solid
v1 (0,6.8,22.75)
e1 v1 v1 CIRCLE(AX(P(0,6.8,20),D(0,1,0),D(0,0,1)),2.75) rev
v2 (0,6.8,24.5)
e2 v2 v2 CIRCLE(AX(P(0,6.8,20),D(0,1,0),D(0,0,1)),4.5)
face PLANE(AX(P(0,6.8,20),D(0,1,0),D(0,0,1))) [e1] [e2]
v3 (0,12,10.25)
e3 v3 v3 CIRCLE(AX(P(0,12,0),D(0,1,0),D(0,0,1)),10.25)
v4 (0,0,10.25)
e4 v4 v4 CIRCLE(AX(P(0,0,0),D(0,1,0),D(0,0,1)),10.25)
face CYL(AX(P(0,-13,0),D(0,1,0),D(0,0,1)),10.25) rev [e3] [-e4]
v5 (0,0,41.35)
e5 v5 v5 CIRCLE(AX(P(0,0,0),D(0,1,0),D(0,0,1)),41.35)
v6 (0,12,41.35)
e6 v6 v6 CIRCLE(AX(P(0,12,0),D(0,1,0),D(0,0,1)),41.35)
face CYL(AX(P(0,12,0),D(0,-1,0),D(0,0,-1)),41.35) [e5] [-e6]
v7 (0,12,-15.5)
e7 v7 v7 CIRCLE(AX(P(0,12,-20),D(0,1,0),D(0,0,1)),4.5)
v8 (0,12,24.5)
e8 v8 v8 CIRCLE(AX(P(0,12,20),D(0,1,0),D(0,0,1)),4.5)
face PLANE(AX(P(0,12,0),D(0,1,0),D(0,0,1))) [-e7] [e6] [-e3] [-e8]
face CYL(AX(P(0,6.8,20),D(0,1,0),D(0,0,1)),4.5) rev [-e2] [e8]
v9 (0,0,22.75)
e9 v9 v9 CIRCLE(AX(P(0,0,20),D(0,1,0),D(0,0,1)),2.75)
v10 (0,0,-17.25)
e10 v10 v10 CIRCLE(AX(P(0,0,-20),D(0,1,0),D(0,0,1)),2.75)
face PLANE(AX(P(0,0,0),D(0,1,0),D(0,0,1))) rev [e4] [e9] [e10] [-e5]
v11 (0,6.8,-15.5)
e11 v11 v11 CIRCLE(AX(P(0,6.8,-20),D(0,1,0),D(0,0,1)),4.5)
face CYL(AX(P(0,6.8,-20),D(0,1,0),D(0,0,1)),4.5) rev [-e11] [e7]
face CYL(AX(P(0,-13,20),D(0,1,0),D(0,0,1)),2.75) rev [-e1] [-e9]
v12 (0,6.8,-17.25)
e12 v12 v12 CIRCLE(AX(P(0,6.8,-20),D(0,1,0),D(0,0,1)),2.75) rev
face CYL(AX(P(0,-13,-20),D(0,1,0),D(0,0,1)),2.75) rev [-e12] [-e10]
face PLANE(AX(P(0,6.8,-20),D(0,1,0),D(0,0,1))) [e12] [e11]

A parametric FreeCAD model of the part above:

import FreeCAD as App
import Part
import Sketcher
Q = App.Units.Quantity

doc = App.newDocument("Part")
params = doc.addObject("Spreadsheet::Sheet", "Params")
for row, (alias, value) in enumerate([
    ("sketch1_diameter", "82.7 mm"),
    ("pad1_length", "12 mm"),
    ("sketch2_diameter", "5.5 mm"),
    ("pocket1_length", "25 mm"),
    ("sketch3_diameter", "20.5 mm"),
    ("pocket2_length", "25 mm"),
    ("sketch4_diameter", "9 mm"),
    ("pocket3_length", "5.2 mm"),
], start=1):
    params.set(f"A{row}", alias)
    params.set(f"B{row}", "=" + value)
    params.setAlias(f"B{row}", alias)

body = doc.addObject("PartDesign::Body", "Body")

sketch1 = body.newObject("Sketcher::SketchObject", "Sketch")
sketch1.AttachmentSupport = (doc.getObject("XZ_Plane"), [""])
sketch1.MapMode = "FlatFace"
sketch1.addGeometry(Part.Circle(App.Vector(0, 0, 0), App.Vector(0, 0, 1), 41), False)
sketch1.addConstraint(Sketcher.Constraint("Coincident", 0, 3, -1, 1))
sketch1.addConstraint(Sketcher.Constraint("Diameter", 0, Q("82.7 mm")))
sketch1.setExpression("Constraints[1]", "Params.sketch1_diameter")
pad1 = body.newObject("PartDesign::Pad", "Pad")
pad1.Profile = sketch1
pad1.setExpression("Length", "Params.pad1_length")
pad1.Reversed = True

sketch2 = body.newObject("Sketcher::SketchObject", "Sketch001")
sketch2.AttachmentSupport = (doc.getObject("XZ_Plane"), [""])
sketch2.MapMode = "FlatFace"
sketch2.AttachmentOffset = App.Placement(App.Vector(0, 0, -12), App.Rotation())
sketch2.addGeometry(Part.Circle(App.Vector(0, -20, 0), App.Vector(0, 0, 1), 2.8), False)
sketch2.addGeometry(Part.Circle(App.Vector(0, 20, 0), App.Vector(0, 0, 1), 2.8), False)
sketch2.addConstraint(Sketcher.Constraint("Equal", 0, 1))
sketch2.addConstraint(Sketcher.Constraint("Symmetric", 0, 3, 1, 3, -1, 1))
sketch2.addConstraint(Sketcher.Constraint("PointOnObject", 0, 3, -2))
sketch2.addConstraint(Sketcher.Constraint("Diameter", 0, Q("5.5 mm")))
sketch2.addConstraint(Sketcher.Constraint("DistanceY", 0, 3, -1, 1, Q("20 mm")))
sketch2.setExpression("Constraints[3]", "Params.sketch2_diameter")
pocket1 = body.newObject("PartDesign::Pocket", "Pocket")
pocket1.Profile = sketch2
pocket1.setExpression("Length", "Params.pocket1_length")
pocket1.Reversed = True

sketch3 = body.newObject("Sketcher::SketchObject", "Sketch002")
sketch3.AttachmentSupport = (doc.getObject("XZ_Plane"), [""])
sketch3.MapMode = "FlatFace"
sketch3.AttachmentOffset = App.Placement(App.Vector(0, 0, -12), App.Rotation())
sketch3.addGeometry(Part.Circle(App.Vector(0, 0, 0), App.Vector(0, 0, 1), 10), False)
sketch3.addConstraint(Sketcher.Constraint("Coincident", 0, 3, -1, 1))
sketch3.addConstraint(Sketcher.Constraint("Diameter", 0, Q("20.5 mm")))
sketch3.setExpression("Constraints[1]", "Params.sketch3_diameter")
pocket2 = body.newObject("PartDesign::Pocket", "Pocket001")
pocket2.Profile = sketch3
pocket2.setExpression("Length", "Params.pocket2_length")
pocket2.Reversed = True

sketch4 = body.newObject("Sketcher::SketchObject", "Sketch003")
sketch4.AttachmentSupport = (doc.getObject("XZ_Plane"), [""])
sketch4.MapMode = "FlatFace"
sketch4.AttachmentOffset = App.Placement(App.Vector(0, 0, -12), App.Rotation())
sketch4.addGeometry(Part.Circle(App.Vector(0, -20, 0), App.Vector(0, 0, 1), 4.5), False)
sketch4.addGeometry(Part.Circle(App.Vector(0, 20, 0), App.Vector(0, 0, 1), 4.5), False)
sketch4.addConstraint(Sketcher.Constraint("Equal", 0, 1))
sketch4.addConstraint(Sketcher.Constraint("Symmetric", 0, 3, 1, 3, -1, 1))
sketch4.addConstraint(Sketcher.Constraint("PointOnObject", 0, 3, -2))
sketch4.addConstraint(Sketcher.Constraint("Diameter", 0, Q("9 mm")))
sketch4.addConstraint(Sketcher.Constraint("DistanceY", 0, 3, -1, 1, Q("20 mm")))
sketch4.setExpression("Constraints[3]", "Params.sketch4_diameter")
pocket3 = body.newObject("PartDesign::Pocket", "Pocket002")
pocket3.Profile = sketch4
pocket3.setExpression("Length", "Params.pocket3_length")
pocket3.Reversed = True

doc.recompute()
